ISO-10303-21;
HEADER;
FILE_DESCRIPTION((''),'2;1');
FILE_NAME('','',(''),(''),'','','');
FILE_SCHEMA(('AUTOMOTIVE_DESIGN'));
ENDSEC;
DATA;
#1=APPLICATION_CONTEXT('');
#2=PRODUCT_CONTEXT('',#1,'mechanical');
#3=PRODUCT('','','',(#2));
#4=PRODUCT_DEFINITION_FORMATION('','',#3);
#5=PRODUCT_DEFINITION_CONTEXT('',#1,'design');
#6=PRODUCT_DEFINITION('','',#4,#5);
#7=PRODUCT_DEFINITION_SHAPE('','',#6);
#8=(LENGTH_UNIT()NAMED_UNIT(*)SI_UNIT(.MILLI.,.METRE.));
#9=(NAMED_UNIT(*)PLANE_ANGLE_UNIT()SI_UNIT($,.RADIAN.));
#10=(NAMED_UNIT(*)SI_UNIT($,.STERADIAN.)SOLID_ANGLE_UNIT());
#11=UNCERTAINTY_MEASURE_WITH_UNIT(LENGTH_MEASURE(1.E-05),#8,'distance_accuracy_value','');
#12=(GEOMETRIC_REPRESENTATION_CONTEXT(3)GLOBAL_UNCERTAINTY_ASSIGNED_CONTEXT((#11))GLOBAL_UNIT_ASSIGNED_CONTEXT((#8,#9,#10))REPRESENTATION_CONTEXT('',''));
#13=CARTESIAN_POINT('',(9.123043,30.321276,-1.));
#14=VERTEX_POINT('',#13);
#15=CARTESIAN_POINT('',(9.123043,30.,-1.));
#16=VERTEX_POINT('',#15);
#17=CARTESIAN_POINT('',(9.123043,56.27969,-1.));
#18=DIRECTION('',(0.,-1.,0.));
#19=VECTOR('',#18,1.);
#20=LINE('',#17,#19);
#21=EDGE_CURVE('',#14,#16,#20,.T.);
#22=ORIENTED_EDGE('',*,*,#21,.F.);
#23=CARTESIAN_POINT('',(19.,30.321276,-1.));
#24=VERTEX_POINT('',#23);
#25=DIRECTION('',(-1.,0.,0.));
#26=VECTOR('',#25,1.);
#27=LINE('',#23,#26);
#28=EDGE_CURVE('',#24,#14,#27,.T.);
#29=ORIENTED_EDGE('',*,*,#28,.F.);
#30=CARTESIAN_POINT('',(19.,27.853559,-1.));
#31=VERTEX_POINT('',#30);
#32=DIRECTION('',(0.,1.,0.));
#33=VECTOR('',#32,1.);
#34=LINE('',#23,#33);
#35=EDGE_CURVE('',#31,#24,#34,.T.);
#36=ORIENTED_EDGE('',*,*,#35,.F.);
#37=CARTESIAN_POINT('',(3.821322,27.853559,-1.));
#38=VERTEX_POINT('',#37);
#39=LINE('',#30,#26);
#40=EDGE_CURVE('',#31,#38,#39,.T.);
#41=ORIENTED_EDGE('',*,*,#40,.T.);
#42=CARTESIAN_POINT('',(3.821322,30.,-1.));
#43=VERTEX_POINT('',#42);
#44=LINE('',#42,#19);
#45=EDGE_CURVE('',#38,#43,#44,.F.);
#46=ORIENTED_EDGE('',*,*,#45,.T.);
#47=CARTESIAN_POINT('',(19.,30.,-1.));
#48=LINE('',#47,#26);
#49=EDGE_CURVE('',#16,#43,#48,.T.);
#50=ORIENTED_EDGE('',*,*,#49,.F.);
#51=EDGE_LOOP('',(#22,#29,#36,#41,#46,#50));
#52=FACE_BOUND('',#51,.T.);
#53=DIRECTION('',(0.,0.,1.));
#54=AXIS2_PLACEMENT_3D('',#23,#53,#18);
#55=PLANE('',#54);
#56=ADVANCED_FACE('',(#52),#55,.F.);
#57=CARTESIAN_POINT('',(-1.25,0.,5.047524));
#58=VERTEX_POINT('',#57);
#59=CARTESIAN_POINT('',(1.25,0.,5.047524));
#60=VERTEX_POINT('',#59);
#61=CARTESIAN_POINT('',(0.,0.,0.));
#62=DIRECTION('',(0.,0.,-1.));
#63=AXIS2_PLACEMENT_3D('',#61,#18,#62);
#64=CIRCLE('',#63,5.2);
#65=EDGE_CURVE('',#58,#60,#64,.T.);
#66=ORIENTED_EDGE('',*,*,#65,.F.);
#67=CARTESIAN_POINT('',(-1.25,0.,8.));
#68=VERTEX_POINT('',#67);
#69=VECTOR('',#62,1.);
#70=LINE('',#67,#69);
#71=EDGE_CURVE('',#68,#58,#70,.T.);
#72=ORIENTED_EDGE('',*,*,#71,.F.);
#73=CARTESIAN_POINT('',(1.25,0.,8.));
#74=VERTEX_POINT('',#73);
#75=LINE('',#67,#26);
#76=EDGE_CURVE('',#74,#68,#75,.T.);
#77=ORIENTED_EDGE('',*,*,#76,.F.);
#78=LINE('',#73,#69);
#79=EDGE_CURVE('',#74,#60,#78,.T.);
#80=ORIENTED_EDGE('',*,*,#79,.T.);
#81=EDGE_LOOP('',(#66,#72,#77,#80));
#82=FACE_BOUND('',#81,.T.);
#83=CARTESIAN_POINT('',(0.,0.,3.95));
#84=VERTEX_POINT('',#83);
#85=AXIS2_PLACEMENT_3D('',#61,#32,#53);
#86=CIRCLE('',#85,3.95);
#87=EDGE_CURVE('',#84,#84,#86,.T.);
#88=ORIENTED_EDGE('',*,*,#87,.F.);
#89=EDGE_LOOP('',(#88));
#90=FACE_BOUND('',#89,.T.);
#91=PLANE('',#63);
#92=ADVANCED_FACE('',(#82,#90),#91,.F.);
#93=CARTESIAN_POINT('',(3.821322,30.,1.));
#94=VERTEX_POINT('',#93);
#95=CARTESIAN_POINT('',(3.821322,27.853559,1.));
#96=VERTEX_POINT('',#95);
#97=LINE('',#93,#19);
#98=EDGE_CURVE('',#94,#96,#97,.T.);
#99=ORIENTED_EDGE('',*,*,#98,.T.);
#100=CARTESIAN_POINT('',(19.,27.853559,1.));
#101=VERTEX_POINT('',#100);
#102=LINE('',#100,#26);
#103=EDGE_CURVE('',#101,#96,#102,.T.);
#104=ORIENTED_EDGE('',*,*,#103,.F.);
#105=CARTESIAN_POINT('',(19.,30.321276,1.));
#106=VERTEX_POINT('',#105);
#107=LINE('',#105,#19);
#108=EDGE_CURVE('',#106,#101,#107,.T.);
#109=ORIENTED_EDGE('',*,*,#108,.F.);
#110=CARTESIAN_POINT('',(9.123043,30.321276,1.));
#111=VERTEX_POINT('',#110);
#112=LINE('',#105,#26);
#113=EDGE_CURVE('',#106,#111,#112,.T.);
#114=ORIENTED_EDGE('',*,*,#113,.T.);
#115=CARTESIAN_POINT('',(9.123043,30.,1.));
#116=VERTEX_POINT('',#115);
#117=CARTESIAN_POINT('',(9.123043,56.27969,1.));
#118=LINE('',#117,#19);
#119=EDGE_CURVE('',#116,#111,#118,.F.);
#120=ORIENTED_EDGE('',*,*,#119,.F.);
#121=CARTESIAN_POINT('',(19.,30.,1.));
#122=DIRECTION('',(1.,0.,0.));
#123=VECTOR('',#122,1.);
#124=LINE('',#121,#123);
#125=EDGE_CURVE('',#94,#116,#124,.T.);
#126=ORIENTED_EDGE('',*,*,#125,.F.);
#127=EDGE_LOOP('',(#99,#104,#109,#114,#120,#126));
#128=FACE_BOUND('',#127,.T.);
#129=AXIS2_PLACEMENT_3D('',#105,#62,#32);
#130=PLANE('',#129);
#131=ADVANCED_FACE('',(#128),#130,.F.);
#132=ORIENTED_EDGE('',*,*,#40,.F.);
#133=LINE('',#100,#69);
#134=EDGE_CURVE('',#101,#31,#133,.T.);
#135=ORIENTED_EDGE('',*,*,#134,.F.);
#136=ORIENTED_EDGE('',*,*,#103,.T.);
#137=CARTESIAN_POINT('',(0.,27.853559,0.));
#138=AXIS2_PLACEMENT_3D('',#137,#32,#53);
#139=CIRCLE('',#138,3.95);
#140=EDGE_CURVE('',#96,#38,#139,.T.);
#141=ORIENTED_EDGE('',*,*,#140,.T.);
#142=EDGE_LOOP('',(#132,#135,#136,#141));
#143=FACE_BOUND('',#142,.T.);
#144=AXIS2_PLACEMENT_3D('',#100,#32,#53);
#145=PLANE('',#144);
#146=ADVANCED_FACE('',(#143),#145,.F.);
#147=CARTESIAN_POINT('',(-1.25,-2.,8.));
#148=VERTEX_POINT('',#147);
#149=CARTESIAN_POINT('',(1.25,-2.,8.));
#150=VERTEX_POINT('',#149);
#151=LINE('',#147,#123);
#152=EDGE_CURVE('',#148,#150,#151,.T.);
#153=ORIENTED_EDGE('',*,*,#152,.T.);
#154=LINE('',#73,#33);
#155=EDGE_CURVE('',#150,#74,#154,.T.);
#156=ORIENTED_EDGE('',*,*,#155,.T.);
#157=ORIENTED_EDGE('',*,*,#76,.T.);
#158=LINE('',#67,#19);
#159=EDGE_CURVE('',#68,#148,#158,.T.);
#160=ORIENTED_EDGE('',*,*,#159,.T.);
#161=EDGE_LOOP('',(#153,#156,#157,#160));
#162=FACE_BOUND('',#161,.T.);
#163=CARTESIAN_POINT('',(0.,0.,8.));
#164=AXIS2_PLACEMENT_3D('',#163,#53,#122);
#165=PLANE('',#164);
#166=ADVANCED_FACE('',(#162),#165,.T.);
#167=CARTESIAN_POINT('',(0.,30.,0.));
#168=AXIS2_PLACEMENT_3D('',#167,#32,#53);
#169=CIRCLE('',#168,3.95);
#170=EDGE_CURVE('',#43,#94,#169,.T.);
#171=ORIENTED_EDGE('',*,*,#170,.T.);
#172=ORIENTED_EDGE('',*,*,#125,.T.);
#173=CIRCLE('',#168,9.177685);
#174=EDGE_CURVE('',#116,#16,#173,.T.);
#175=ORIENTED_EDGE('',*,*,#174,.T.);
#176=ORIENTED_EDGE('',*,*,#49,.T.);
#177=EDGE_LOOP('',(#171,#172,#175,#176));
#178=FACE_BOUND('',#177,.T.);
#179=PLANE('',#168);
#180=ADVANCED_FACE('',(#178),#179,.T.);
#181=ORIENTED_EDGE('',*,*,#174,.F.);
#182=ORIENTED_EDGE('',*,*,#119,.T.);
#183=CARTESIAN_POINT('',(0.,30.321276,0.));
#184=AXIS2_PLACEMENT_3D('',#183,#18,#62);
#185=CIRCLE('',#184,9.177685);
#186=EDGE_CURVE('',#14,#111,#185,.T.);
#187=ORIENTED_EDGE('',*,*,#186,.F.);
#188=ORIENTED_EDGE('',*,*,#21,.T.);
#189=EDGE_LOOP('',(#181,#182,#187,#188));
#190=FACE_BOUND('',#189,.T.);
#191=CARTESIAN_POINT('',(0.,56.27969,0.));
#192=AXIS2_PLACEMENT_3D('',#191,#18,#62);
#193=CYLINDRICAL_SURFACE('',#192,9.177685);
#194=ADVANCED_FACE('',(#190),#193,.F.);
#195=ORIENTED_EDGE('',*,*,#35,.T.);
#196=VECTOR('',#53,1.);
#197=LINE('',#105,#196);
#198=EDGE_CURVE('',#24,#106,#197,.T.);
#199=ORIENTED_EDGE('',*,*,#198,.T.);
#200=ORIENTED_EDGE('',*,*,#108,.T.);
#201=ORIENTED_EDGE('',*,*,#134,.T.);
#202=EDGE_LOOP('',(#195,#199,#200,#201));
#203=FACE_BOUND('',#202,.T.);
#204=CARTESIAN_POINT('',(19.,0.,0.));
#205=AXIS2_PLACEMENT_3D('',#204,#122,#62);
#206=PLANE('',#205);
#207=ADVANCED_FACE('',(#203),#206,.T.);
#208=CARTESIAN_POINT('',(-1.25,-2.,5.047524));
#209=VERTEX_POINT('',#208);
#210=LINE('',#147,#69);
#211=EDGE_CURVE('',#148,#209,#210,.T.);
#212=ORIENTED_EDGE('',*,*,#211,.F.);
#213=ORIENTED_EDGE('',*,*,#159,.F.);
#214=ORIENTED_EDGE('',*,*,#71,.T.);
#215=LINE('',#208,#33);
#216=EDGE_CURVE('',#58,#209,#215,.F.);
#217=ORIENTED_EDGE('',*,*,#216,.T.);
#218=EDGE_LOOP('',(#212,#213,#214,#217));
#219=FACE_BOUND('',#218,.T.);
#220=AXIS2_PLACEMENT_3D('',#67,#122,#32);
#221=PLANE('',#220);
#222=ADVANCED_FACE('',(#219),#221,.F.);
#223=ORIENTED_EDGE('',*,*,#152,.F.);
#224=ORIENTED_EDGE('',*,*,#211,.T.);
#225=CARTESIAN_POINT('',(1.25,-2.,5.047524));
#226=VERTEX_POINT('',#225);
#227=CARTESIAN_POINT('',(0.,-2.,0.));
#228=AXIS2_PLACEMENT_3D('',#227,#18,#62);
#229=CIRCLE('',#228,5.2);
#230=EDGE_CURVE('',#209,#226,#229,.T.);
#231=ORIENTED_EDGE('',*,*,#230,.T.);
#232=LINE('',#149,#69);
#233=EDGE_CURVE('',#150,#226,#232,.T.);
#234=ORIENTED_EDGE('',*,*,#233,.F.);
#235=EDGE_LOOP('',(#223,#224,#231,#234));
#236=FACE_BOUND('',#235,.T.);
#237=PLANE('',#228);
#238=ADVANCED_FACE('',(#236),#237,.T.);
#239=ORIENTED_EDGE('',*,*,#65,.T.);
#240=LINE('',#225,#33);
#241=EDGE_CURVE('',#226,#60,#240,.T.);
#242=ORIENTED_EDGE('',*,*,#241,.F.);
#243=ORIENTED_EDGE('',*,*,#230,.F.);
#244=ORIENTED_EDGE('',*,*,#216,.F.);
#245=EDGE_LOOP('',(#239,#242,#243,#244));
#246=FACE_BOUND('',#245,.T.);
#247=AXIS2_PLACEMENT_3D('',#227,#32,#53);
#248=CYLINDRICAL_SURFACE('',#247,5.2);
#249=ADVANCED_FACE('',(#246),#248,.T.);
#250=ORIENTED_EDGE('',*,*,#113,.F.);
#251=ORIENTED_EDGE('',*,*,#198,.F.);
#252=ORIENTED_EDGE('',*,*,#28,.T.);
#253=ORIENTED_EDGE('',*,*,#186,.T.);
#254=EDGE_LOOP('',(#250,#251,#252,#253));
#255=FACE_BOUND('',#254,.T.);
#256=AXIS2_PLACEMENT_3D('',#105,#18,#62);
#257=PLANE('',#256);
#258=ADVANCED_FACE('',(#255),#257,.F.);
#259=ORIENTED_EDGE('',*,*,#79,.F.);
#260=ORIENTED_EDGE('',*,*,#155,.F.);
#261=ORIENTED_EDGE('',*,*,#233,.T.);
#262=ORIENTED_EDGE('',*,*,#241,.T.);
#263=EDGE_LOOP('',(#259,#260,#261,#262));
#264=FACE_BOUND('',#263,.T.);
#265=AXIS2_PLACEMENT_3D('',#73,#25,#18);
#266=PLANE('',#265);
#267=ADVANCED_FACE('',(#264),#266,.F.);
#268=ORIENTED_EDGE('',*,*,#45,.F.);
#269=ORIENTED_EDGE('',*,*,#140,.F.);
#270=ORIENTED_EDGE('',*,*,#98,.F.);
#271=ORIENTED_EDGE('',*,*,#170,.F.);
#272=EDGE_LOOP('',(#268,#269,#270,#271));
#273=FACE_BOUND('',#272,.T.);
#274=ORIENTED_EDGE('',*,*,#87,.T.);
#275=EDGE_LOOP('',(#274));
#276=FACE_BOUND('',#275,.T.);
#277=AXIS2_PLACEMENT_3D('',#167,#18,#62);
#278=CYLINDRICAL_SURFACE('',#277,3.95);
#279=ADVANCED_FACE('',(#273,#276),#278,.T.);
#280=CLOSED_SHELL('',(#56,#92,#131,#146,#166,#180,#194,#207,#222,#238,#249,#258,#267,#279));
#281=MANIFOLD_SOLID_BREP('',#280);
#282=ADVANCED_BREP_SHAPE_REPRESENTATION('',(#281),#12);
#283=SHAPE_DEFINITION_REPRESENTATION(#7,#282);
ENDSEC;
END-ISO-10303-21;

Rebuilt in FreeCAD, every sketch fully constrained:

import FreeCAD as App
import Part
import Sketcher

V = App.Vector
Q = App.Units.Quantity


def add_polygon(sketch, points):
    """Adds a closed chain of lines whose ends are joined by coincident constraints."""
    first, n = sketch.GeometryCount, len(points)
    for a, b in zip(points, points[1:] + points[:1]):
        sketch.addGeometry(Part.LineSegment(App.Vector(*a, 0), App.Vector(*b, 0)), False)
    for i in range(n):
        sketch.addConstraint(Sketcher.Constraint("Coincident", first + i, 2, first + (i + 1) % n, 1))

doc = App.newDocument("Part")
body = doc.addObject("PartDesign::Body", "Body")

sketch1 = body.newObject("Sketcher::SketchObject", "Sketch")
sketch1.AttachmentSupport = (doc.getObject("XZ_Plane"), [""])
sketch1.MapMode = "FlatFace"
sketch1.addGeometry(Part.Circle(V(0, 0, 0), V(0, 0, 1), 3.95), False)
sketch1.addConstraint(Sketcher.Constraint("Coincident", 0, 3, -1, 1))
sketch1.addConstraint(Sketcher.Constraint("Diameter", 0, Q("7.9 mm")))
pad1 = body.newObject("PartDesign::Pad", "Pad")
pad1.Profile = sketch1
pad1.Length = 30
pad1.Reversed = True

sketch2 = body.newObject("Sketcher::SketchObject", "Sketch001")
sketch2.AttachmentSupport = (doc.getObject("XZ_Plane"), [""])
sketch2.MapMode = "FlatFace"
sketch2.addGeometry(Part.Circle(V(0, 0, 0), V(0, 0, 1), 5.2), False)
sketch2.addConstraint(Sketcher.Constraint("Coincident", 0, 3, -1, 1))
sketch2.addConstraint(Sketcher.Constraint("Diameter", 0, Q("10.4 mm")))
pad2 = body.newObject("PartDesign::Pad", "Pad001")
pad2.Profile = sketch2
pad2.Length = 2

sketch3 = body.newObject("Sketcher::SketchObject", "Sketch002")
sketch3.AttachmentSupport = (doc.getObject("YZ_Plane"), [""])
sketch3.MapMode = "FlatFace"
add_polygon(sketch3, [(30.321276, 1), (27.853559, 1), (27.853559, -1), (30.321276, -1)])
sketch3.addConstraint(Sketcher.Constraint("Horizontal", 0))
sketch3.addConstraint(Sketcher.Constraint("Vertical", 1))
sketch3.addConstraint(Sketcher.Constraint("Horizontal", 2))
sketch3.addConstraint(Sketcher.Constraint("Vertical", 3))
sketch3.addConstraint(Sketcher.Constraint("DistanceY", 1, 2, 1, 1, Q("2 mm")))
sketch3.addConstraint(Sketcher.Constraint("DistanceY", -1, 1, 0, 2, Q("1 mm")))
sketch3.addConstraint(Sketcher.Constraint("DistanceX", 0, 2, 0, 1, Q("2.467718 mm")))
sketch3.addConstraint(Sketcher.Constraint("DistanceX", -1, 1, 0, 2, Q("27.853559 mm")))
pad3 = body.newObject("PartDesign::Pad", "Pad002")
pad3.Profile = sketch3
pad3.Length = 19

sketch4 = body.newObject("Sketcher::SketchObject", "Sketch003")
sketch4.AttachmentSupport = (doc.getObject("XZ_Plane"), [""])
sketch4.MapMode = "FlatFace"
sketch4.AttachmentOffset = App.Placement(V(0, 0, -30), App.Rotation())
sketch4.addGeometry(Part.Circle(V(0, 0, 0), V(0, 0, 1), 9.177685), False)
sketch4.addConstraint(Sketcher.Constraint("Coincident", 0, 3, -1, 1))
sketch4.addConstraint(Sketcher.Constraint("Diameter", 0, Q("18.355371 mm")))
pocket1 = body.newObject("PartDesign::Pocket", "Pocket")
pocket1.Profile = sketch4
pocket1.Length = 0.321276

sketch5 = body.newObject("Sketcher::SketchObject", "Sketch004")
sketch5.AttachmentSupport = (doc.getObject("XY_Plane"), [""])
sketch5.MapMode = "FlatFace"
add_polygon(sketch5, [(-1.25, 0), (-1.25, -2), (1.25, -2), (1.25, 0)])
sketch5.addConstraint(Sketcher.Constraint("Vertical", 0))
sketch5.addConstraint(Sketcher.Constraint("Horizontal", 1))
sketch5.addConstraint(Sketcher.Constraint("Vertical", 2))
sketch5.addConstraint(Sketcher.Constraint("Horizontal", 3))
sketch5.addConstraint(Sketcher.Constraint("Symmetric", 2, 2, 3, 2, -1, 1))
sketch5.addConstraint(Sketcher.Constraint("DistanceY", 0, 2, 0, 1, Q("2 mm")))
sketch5.addConstraint(Sketcher.Constraint("DistanceX", 1, 1, 1, 2, Q("2.5 mm")))
pad4 = body.newObject("PartDesign::Pad", "Pad003")
pad4.Profile = sketch5
pad4.Length = 8

doc.recompute()
